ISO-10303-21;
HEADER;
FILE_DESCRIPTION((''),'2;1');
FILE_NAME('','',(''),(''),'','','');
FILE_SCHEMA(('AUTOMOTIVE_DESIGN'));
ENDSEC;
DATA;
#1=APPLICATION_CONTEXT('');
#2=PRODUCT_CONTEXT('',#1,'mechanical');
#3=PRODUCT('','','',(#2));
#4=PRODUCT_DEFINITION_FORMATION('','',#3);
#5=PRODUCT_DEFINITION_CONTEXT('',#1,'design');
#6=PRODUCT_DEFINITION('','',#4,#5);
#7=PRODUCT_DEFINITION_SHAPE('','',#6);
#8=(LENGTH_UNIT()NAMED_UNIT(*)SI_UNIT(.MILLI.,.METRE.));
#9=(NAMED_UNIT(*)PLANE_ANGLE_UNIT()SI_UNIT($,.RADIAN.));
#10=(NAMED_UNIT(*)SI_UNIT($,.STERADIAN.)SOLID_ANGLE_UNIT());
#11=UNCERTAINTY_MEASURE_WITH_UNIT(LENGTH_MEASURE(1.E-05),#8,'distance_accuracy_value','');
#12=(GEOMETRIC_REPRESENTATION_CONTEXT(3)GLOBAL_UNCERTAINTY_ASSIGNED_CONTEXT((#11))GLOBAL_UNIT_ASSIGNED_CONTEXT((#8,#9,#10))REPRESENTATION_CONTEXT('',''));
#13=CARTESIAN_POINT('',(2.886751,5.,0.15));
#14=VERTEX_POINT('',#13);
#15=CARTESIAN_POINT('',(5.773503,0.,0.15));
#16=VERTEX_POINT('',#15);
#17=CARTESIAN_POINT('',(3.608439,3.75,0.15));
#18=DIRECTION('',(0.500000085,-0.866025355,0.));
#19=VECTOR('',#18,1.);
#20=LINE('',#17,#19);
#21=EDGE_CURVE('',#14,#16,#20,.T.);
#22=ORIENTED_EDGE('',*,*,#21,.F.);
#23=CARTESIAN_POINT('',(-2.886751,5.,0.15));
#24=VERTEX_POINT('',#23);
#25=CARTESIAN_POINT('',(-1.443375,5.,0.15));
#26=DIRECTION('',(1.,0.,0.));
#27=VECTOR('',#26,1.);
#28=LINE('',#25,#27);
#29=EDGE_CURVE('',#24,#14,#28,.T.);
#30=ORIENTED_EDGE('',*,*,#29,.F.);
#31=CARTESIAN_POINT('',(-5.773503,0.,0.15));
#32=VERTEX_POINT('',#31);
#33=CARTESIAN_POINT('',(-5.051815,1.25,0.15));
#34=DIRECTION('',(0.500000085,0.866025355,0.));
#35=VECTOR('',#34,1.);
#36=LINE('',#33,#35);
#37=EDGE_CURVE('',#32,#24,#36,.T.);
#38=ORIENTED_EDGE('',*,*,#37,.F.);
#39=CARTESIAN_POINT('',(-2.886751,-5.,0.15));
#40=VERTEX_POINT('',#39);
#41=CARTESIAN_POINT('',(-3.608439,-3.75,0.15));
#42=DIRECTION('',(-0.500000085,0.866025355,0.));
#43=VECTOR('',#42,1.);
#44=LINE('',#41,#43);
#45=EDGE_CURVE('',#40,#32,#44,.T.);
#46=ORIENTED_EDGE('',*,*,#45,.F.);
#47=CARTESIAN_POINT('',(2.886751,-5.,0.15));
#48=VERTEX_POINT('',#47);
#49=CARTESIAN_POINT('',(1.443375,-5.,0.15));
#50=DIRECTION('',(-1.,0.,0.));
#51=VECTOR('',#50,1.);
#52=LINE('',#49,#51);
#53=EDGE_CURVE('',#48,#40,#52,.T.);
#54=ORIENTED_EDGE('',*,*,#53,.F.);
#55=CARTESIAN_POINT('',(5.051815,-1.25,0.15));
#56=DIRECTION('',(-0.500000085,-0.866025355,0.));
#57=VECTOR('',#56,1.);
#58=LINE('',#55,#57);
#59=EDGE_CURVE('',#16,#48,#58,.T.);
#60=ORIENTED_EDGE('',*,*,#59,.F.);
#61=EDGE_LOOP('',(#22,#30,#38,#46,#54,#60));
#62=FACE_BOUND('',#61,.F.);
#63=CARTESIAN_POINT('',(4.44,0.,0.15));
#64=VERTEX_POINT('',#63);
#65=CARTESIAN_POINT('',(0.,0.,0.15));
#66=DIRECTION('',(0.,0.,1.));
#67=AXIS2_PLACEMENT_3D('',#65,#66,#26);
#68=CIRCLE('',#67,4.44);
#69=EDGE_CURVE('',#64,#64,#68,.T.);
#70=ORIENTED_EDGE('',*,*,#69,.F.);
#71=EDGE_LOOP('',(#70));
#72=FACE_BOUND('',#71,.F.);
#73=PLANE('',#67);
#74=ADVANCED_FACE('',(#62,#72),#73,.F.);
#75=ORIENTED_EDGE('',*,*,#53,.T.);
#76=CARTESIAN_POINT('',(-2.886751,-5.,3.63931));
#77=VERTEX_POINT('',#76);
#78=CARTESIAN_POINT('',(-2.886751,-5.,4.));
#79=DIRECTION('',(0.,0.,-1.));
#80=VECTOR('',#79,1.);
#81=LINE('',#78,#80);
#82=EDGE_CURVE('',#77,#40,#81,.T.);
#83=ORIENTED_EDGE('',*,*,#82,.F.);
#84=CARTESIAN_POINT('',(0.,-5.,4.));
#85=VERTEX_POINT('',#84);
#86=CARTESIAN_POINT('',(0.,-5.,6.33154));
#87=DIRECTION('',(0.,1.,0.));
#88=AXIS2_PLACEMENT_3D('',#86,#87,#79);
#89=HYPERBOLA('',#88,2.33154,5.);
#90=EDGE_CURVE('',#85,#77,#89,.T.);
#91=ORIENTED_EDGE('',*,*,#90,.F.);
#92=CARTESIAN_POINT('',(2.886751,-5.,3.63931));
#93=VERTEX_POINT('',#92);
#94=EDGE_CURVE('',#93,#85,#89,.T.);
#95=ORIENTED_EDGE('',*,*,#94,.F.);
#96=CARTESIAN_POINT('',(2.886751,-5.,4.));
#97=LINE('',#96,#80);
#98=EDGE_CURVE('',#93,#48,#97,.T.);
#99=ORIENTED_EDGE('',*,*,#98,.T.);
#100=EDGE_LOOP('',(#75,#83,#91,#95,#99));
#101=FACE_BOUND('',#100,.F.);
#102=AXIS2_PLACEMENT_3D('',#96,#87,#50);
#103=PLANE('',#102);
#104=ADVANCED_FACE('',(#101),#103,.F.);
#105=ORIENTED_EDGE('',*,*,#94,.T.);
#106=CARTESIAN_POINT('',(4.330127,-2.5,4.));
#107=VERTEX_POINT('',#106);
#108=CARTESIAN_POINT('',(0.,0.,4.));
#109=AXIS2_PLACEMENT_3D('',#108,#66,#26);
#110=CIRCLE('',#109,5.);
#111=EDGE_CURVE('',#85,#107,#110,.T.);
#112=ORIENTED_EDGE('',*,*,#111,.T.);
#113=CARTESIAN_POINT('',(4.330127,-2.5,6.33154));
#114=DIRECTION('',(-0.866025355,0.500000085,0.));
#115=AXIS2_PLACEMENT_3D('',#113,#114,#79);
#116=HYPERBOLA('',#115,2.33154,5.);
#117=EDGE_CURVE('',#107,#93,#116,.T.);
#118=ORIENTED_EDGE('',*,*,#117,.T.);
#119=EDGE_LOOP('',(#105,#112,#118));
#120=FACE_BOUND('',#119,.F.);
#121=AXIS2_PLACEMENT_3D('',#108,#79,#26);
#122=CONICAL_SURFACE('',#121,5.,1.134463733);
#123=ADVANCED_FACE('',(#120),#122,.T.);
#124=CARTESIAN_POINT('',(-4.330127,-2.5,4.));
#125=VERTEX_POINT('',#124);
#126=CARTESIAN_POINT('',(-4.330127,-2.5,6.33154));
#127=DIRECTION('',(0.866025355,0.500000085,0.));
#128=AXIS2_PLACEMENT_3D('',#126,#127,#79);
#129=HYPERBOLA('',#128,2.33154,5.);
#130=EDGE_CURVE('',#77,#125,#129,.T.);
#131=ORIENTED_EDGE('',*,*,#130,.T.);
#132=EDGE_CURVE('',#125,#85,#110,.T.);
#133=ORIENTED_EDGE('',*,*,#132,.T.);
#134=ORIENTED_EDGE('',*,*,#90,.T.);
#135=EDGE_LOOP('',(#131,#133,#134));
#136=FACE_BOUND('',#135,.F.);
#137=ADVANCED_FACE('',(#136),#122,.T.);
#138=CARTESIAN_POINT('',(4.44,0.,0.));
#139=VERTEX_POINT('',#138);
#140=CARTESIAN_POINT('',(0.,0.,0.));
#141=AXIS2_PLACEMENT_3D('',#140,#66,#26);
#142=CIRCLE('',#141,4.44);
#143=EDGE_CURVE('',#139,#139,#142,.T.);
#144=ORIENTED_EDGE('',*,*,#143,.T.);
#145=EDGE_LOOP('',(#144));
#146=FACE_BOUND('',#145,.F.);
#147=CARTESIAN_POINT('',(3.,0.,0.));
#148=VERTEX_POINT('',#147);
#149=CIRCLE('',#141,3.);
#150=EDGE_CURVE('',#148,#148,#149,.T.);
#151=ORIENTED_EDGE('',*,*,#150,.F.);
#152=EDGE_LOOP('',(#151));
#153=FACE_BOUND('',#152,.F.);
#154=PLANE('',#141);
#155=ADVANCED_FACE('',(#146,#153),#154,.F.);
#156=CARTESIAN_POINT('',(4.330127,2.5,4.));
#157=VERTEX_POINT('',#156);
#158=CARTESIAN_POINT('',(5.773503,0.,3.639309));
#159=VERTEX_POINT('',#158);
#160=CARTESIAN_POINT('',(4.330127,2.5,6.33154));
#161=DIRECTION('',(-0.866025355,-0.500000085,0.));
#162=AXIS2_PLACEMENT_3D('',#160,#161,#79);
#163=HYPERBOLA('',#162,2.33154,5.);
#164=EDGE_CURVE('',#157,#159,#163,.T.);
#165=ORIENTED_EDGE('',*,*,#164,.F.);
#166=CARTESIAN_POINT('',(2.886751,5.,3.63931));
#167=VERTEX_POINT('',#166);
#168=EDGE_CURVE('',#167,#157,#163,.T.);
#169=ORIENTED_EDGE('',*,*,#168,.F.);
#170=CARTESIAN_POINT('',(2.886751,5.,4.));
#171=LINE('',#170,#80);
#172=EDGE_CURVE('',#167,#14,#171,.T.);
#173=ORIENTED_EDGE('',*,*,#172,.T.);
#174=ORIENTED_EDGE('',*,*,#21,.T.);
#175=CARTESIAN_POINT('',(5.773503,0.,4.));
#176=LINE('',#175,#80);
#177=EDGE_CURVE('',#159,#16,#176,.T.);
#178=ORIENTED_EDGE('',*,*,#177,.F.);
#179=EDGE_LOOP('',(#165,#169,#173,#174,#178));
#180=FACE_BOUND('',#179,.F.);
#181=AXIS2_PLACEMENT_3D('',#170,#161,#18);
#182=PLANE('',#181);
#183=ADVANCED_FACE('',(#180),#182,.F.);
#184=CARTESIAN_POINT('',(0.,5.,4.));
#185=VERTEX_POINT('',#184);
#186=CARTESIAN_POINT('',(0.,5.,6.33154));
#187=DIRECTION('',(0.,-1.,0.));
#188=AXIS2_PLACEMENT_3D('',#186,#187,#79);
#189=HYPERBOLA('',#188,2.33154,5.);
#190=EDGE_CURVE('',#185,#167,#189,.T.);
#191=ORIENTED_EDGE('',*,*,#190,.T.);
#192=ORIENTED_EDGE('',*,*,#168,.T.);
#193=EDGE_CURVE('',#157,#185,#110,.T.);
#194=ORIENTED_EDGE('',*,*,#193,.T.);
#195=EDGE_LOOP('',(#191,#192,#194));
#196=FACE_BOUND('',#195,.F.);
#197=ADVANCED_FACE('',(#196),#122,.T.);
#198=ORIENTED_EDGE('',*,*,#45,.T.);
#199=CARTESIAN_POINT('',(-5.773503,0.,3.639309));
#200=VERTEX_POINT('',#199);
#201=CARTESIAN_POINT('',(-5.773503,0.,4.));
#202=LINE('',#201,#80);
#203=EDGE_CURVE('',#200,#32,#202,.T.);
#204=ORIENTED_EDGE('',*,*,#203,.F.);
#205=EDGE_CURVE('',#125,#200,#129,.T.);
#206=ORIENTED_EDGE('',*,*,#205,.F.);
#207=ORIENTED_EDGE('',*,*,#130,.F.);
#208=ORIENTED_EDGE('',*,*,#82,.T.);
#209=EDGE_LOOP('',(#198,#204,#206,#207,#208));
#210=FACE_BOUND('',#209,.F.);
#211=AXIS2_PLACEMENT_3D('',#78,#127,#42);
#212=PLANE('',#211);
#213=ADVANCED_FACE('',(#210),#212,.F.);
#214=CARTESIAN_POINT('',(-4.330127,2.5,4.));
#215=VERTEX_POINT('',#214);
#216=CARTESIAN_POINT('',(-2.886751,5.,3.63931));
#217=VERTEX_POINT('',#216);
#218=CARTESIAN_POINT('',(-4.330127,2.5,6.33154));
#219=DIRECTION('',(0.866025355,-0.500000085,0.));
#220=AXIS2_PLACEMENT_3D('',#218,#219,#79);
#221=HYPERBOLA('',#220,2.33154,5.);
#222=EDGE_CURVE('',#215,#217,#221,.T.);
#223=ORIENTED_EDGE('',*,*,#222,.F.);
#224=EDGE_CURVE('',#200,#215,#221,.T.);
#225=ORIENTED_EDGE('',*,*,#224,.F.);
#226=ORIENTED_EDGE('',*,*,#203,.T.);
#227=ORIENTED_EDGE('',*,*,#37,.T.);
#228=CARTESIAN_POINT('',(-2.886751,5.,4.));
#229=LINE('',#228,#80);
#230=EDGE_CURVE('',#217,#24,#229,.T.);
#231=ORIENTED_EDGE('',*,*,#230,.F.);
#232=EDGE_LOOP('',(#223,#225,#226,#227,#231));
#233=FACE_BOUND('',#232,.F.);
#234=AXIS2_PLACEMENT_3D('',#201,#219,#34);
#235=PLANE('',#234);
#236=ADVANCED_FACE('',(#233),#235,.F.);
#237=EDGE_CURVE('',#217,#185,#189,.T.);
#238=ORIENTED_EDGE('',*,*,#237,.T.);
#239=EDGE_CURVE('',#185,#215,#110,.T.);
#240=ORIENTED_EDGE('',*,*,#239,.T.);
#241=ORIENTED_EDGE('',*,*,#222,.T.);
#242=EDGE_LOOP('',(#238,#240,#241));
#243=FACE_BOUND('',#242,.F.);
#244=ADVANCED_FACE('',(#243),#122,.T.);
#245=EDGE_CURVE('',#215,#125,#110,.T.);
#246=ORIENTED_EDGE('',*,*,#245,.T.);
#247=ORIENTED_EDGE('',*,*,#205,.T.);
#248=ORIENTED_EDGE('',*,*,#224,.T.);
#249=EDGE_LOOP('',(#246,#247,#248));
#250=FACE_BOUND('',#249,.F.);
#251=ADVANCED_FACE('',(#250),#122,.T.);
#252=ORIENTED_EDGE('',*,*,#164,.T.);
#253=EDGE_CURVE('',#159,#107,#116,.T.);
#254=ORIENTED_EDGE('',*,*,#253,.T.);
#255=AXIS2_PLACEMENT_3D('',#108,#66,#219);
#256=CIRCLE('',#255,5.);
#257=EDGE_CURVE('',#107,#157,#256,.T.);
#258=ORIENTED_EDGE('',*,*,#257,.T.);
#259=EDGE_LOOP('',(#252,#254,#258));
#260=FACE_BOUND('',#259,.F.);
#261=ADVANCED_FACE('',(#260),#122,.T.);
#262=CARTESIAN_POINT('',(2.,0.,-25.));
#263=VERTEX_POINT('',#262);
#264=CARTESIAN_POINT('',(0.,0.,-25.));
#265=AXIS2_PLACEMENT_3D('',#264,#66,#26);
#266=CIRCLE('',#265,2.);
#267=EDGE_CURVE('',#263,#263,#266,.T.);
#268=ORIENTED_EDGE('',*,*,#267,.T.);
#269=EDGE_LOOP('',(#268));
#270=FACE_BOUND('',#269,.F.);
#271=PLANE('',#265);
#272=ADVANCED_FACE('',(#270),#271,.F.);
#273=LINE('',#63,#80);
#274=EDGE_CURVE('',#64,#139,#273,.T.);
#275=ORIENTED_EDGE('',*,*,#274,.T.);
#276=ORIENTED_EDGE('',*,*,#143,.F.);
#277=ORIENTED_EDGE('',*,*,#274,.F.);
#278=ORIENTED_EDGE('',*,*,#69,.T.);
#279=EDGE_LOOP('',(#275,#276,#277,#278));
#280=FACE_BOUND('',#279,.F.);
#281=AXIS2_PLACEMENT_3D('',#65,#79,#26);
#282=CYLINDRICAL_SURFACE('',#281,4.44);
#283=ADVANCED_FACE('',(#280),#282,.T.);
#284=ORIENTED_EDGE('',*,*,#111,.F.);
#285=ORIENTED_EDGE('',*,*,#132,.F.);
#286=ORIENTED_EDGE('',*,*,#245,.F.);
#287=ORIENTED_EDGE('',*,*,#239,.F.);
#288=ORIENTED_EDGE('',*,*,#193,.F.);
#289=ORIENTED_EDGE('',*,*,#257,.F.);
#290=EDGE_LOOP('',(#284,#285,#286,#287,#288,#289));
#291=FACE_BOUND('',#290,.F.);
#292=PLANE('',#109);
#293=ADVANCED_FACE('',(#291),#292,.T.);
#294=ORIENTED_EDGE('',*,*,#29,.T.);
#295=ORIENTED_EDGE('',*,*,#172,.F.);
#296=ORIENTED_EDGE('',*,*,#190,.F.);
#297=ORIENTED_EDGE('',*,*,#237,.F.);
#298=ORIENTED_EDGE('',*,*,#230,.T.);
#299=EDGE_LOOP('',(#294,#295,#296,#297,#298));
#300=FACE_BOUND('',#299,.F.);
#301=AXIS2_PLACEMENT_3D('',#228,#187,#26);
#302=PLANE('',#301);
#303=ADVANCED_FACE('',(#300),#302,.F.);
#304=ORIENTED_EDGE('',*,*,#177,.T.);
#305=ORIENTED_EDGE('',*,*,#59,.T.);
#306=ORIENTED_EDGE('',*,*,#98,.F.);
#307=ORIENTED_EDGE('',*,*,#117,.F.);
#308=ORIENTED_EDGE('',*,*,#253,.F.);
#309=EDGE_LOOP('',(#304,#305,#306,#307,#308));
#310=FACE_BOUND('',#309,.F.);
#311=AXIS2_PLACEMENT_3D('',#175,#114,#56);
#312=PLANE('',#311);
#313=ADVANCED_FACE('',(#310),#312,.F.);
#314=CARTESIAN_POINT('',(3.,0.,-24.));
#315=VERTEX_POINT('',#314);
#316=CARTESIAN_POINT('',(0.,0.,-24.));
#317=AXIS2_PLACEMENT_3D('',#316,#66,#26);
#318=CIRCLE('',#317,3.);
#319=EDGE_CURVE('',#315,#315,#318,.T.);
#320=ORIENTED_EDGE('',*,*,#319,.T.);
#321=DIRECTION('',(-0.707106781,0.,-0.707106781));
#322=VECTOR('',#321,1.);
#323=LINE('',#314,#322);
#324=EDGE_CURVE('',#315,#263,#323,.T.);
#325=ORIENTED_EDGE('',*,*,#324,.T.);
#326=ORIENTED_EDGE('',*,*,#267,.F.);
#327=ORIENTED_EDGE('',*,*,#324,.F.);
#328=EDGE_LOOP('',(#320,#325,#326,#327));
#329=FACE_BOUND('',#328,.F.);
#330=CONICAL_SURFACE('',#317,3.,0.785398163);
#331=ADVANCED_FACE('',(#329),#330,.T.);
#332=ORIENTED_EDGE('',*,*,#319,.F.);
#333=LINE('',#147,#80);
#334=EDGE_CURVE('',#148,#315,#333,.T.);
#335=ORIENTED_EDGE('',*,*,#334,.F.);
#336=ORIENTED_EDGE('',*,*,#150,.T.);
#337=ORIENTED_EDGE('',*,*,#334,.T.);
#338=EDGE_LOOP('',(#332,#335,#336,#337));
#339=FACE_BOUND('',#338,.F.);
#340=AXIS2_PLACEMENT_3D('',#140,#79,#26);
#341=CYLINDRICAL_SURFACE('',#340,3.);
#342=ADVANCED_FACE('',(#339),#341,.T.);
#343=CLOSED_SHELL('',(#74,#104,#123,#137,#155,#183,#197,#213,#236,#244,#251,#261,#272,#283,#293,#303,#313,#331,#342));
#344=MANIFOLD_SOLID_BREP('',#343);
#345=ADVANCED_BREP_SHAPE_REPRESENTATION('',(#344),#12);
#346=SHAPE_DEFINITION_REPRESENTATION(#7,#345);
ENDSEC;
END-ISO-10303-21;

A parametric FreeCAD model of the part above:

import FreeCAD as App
import Part
import Sketcher
Q = App.Units.Quantity


def edges_at(feature, points):
    """Names of the edges that pass closest to the given points."""
    edges = feature.Shape.Edges
    near = lambda p: min(range(len(edges)), key=lambda i: edges[i].distToShape(Part.Vertex(*p))[0])
    return sorted({f"Edge{near(p) + 1}" for p in points})

doc = App.newDocument("Part")
params = doc.addObject("Spreadsheet::Sheet", "Params")
for row, (alias, value) in enumerate([
    ("sketch1_width", "5 mm"),
    ("sketch1_width2", "3 mm"),
    ("sketch1_height", "29 mm"),
    ("sketch1_height2", "25 mm"),
    ("sketch1_width3", "1.44 mm"),
    ("revolution_angle", "360 deg"),
    ("chamfer_size", "1 mm"),
], start=1):
    params.set(f"A{row}", alias)
    params.set(f"B{row}", "=" + value)
    params.setAlias(f"B{row}", alias)

body = doc.addObject("PartDesign::Body", "Body")

# Sketch on XZ plane
sketch1 = body.newObject("Sketcher::SketchObject", "Sketch")
sketch1.AttachmentSupport = (doc.getObject("XZ_Plane"), [""])
sketch1.MapMode = "FlatFace"
sketch1.addGeometry([
    Part.LineSegment(App.Vector(5, 4, 0), App.Vector(0, 4, 0)),  # 0
    Part.LineSegment(App.Vector(0, 4, 0), App.Vector(0, -25, 0)),  # 1
    Part.LineSegment(App.Vector(0, -25, 0), App.Vector(3, -25, 0)),  # 2
    Part.LineSegment(App.Vector(3, -25, 0), App.Vector(3, 0, 0)),  # 3
    Part.LineSegment(App.Vector(3, 0, 0), App.Vector(4.44, 0, 0)),  # 4
    Part.LineSegment(App.Vector(4.44, 0, 0), App.Vector(4.44, 0.15, 0)),  # 5
    Part.LineSegment(App.Vector(4.44, 0.15, 0), App.Vector(6, 0.15, 0)),  # 6
    Part.LineSegment(App.Vector(6, 0.15, 0), App.Vector(6, 3.533692, 0)),  # 7
    Part.LineSegment(App.Vector(6, 3.533692, 0), App.Vector(5, 4, 0)),  # 8
], False)
sketch1.addConstraint([
    Sketcher.Constraint("Coincident", 0, 2, 1, 1),
    Sketcher.Constraint("Coincident", 1, 2, 2, 1),
    Sketcher.Constraint("Coincident", 2, 2, 3, 1),
    Sketcher.Constraint("Coincident", 3, 2, 4, 1),
    Sketcher.Constraint("Coincident", 4, 2, 5, 1),
    Sketcher.Constraint("Coincident", 5, 2, 6, 1),
    Sketcher.Constraint("Coincident", 6, 2, 7, 1),
    Sketcher.Constraint("Coincident", 7, 2, 8, 1),
    Sketcher.Constraint("Coincident", 8, 2, 0, 1),
    Sketcher.Constraint("Horizontal", 0),
    Sketcher.Constraint("Vertical", 1),
    Sketcher.Constraint("Horizontal", 2),
    Sketcher.Constraint("Vertical", 3),
    Sketcher.Constraint("Horizontal", 4),
    Sketcher.Constraint("Vertical", 5),
    Sketcher.Constraint("Horizontal", 6),
    Sketcher.Constraint("Vertical", 7),
    Sketcher.Constraint("PointOnObject", 0, 2, -2),
    Sketcher.Constraint("PointOnObject", 3, 2, -1),
    Sketcher.Constraint("DistanceX", 0, 2, 0, 1, Q("5 mm")),
    Sketcher.Constraint("DistanceX", 2, 1, 2, 2, Q("3 mm")),
    Sketcher.Constraint("DistanceY", 1, 2, 1, 1, Q("29 mm")),
    Sketcher.Constraint("DistanceY", 3, 1, 3, 2, Q("25 mm")),
    Sketcher.Constraint("Angle", 8, Q("154.999984 deg")),
    Sketcher.Constraint("DistanceX", -1, 1, 6, 2, Q("6 mm")),
    Sketcher.Constraint("DistanceX", 4, 1, 4, 2, Q("1.44 mm")),
    Sketcher.Constraint("DistanceY", 5, 1, 5, 2, Q("0.15 mm")),
])
sketch1.setExpression("Constraints[19]", "Params.sketch1_width")
sketch1.setExpression("Constraints[20]", "Params.sketch1_width2")
sketch1.setExpression("Constraints[21]", "Params.sketch1_height")
sketch1.setExpression("Constraints[22]", "Params.sketch1_height2")
sketch1.setExpression("Constraints[25]", "Params.sketch1_width3")
revolution = body.newObject("PartDesign::Revolution", "Revolution")
revolution.Profile = sketch1
revolution.ReferenceAxis = (sketch1, ["V_Axis"])
revolution.setExpression("Angle", "Params.revolution_angle")

# Sketch on XY plane
sketch2 = body.newObject("Sketcher::SketchObject", "Sketch001")
sketch2.AttachmentSupport = (doc.getObject("XY_Plane"), [""])
sketch2.MapMode = "FlatFace"
sketch2.AttachmentOffset = App.Placement(App.Vector(0, 0, 4), App.Rotation())
sketch2.addGeometry([
    Part.Circle(App.Vector(0, 0, 0), App.Vector(0, 0, 1), 7.773503),  # 0
    Part.LineSegment(App.Vector(5.773503, 0, 0), App.Vector(2.886751, -5, 0)),  # 1
    Part.LineSegment(App.Vector(2.886751, -5, 0), App.Vector(-2.886751, -5, 0)),  # 2
    Part.LineSegment(App.Vector(-2.886751, -5, 0), App.Vector(-5.773503, 0, 0)),  # 3
    Part.LineSegment(App.Vector(-5.773503, 0, 0), App.Vector(-2.886751, 5, 0)),  # 4
    Part.LineSegment(App.Vector(-2.886751, 5, 0), App.Vector(2.886751, 5, 0)),  # 5
    Part.LineSegment(App.Vector(2.886751, 5, 0), App.Vector(5.773503, 0, 0)),  # 6
], False)
sketch2.addConstraint([
    Sketcher.Constraint("Coincident", 1, 2, 2, 1),
    Sketcher.Constraint("Coincident", 2, 2, 3, 1),
    Sketcher.Constraint("Coincident", 3, 2, 4, 1),
    Sketcher.Constraint("Coincident", 4, 2, 5, 1),
    Sketcher.Constraint("Coincident", 5, 2, 6, 1),
    Sketcher.Constraint("Coincident", 6, 2, 1, 1),
    Sketcher.Constraint("Horizontal", 2),
    Sketcher.Constraint("Horizontal", 5),
    Sketcher.Constraint("Coincident", 0, 3, -1, 1),
    Sketcher.Constraint("Symmetric", 1, 2, 4, 2, -1, 1),
    Sketcher.Constraint("Symmetric", 3, 2, 6, 2, -1, 1),
    Sketcher.Constraint("PointOnObject", 3, 2, -1),
    Sketcher.Constraint("Parallel", 3, 6),
    Sketcher.Constraint("Vertical", 2, 2, 4, 2),
    Sketcher.Constraint("Angle", 1, Q("-120.000006 deg")),
    Sketcher.Constraint("DistanceY", 1, 2, -1, 1, Q("5 mm")),
    Sketcher.Constraint("Diameter", 0, Q("15.547006 mm")),
    Sketcher.Constraint("DistanceX", 2, 2, 2, 1, Q("5.773502 mm")),
])
pocket1 = body.newObject("PartDesign::Pocket", "Pocket")
pocket1.Profile = sketch2
pocket1.Type = "ThroughAll"
doc.recompute()

chamfer = body.newObject("PartDesign::Chamfer", "Chamfer")
chamfer.Base = (pocket1, edges_at(pocket1, [(-3, 0, -25)]))
chamfer.setExpression("Size", "Params.chamfer_size")

doc.recompute()
